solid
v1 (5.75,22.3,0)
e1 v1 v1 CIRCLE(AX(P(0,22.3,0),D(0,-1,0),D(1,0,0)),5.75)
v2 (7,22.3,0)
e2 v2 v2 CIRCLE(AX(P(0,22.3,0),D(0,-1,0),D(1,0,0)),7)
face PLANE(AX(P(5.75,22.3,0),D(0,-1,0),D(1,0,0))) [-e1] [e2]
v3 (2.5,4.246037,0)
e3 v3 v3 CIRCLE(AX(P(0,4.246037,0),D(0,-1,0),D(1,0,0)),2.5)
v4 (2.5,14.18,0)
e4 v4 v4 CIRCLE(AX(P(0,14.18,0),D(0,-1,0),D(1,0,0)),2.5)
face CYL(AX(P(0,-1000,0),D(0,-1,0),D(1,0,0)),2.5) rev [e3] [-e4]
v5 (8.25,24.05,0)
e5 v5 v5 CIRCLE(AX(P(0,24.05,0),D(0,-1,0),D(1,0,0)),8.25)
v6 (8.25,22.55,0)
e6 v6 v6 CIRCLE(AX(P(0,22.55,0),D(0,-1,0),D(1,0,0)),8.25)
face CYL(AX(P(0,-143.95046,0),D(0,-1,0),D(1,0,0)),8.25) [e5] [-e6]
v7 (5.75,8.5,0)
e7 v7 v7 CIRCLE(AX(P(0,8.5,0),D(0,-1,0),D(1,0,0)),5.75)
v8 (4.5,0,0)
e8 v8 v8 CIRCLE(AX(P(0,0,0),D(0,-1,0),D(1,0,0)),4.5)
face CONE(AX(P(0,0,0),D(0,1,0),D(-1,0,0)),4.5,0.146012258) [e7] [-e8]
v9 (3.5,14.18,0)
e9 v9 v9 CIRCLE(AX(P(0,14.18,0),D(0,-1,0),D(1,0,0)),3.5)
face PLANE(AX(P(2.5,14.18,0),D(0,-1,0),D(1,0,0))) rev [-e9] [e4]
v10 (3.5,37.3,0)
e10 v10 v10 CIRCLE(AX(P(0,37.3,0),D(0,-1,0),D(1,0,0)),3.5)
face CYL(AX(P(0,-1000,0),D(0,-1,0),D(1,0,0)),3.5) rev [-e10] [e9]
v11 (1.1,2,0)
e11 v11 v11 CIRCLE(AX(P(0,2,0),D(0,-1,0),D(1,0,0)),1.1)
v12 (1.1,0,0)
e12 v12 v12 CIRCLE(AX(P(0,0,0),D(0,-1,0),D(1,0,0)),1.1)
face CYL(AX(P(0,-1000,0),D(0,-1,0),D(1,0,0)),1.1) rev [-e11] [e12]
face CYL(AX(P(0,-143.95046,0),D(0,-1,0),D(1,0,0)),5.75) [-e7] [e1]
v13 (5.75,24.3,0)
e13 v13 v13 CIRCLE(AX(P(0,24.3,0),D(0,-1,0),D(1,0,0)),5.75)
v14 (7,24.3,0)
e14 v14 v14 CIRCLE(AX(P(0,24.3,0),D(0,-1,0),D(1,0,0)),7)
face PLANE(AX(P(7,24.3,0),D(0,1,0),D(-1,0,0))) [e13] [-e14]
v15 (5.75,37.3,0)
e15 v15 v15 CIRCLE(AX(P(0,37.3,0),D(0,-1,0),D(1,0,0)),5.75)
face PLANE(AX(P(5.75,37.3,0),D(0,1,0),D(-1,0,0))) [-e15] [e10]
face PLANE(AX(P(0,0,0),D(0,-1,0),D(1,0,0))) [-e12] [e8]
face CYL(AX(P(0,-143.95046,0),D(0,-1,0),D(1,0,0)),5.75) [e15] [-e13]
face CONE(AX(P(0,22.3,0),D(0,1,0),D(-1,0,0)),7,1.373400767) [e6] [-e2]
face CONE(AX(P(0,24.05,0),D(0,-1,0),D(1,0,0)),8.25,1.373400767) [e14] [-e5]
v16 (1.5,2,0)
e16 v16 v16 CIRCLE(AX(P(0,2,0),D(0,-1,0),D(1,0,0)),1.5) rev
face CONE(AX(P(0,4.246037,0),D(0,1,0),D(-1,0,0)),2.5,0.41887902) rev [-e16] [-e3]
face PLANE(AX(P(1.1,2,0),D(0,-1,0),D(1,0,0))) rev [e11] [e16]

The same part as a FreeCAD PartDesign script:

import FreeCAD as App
import Part
import Sketcher
from FreeCAD import Vector


def edges_at(feature, points):
    """Names of the edges that pass closest to the given points."""
    edges = feature.Shape.Edges
    near = lambda p: min(range(len(edges)), key=lambda i: edges[i].distToShape(Part.Vertex(*p))[0])
    return sorted({f"Edge{near(p) + 1}" for p in points})


def add_polygon(sketch, points):
    """Adds a closed chain of lines whose ends are joined by coincident constraints."""
    first, n = sketch.GeometryCount, len(points)
    for a, b in zip(points, points[1:] + points[:1]):
        sketch.addGeometry(Part.LineSegment(App.Vector(*a, 0), App.Vector(*b, 0)), False)
    for i in range(n):
        sketch.addConstraint(Sketcher.Constraint("Coincident", first + i, 2, first + (i + 1) % n, 1))

doc = App.newDocument("Part")
body = doc.addObject("PartDesign::Body", "Body")

# Sketch on XY plane
sketch1 = body.newObject("Sketcher::SketchObject", "Sketch")
sketch1.AttachmentSupport = (doc.getObject("XY_Plane"), [""])
sketch1.MapMode = "FlatFace"
add_polygon(sketch1, [(0, 0), (4.5, 0), (5.8, 8.5), (5.8, 22.3), (7, 22.3), (8.2, 22.6), (8.2, 24.1), (7, 24.3), (5.8, 24.3), (5.8, 37.3), (0, 37.3)])  # lines 0-10
sketch1.addConstraint([
    Sketcher.Constraint("Horizontal", 0),
    Sketcher.Constraint("Vertical", 2),
    Sketcher.Constraint("Horizontal", 3),
    Sketcher.Constraint("Vertical", 5),
    Sketcher.Constraint("Horizontal", 7),
    Sketcher.Constraint("Vertical", 8),
    Sketcher.Constraint("Horizontal", 9),
    Sketcher.Constraint("Vertical", 10),
    Sketcher.Constraint("Coincident", 10, 2, -1, 1),
    Sketcher.Constraint("Vertical", 3, 2, 6, 2),
    Sketcher.Constraint("Vertical", 2, 2, 7, 2),
    Sketcher.Constraint("Equal", 4, 6),
    Sketcher.Constraint("DistanceY", 8, 1, 8, 2, 13.0),
    Sketcher.Constraint("DistanceX", 0, 1, 0, 2, 4.5),
    Sketcher.Constraint("DistanceY", 2, 1, 2, 2, 13.8),
    Sketcher.Constraint("DistanceY", 5, 1, 5, 2, 1.5),
    Sketcher.Constraint("DistanceY", 10, 2, 10, 1, 37.3),
    Sketcher.Constraint("DistanceX", -1, 1, 3, 2, 7.0),
    Sketcher.Constraint("DistanceY", 3, 2, 6, 2, 2.0),
    Sketcher.Constraint("DistanceX", 3, 1, 3, 2, 1.25),
    Sketcher.Constraint("DistanceX", 2, 2, 4, 2, 2.5),
])
revolution = body.newObject("PartDesign::Revolution", "Revolution")
revolution.Profile = sketch1
revolution.ReferenceAxis = (sketch1, ["V_Axis"])
revolution.Angle = 360

# Sketch on XY plane
sketch2 = body.newObject("Sketcher::SketchObject", "Sketch001")
sketch2.AttachmentSupport = (doc.getObject("XY_Plane"), [""])
sketch2.MapMode = "FlatFace"
add_polygon(sketch2, [(1.1, 0), (1.1, 2), (2.5, 2), (2.5, 14.2), (3.5, 14.2), (3.5, 37.3), (0, 37.3), (0, 0)])  # lines 0-7
sketch2.addConstraint([
    Sketcher.Constraint("Vertical", 0),
    Sketcher.Constraint("Horizontal", 1),
    Sketcher.Constraint("Vertical", 2),
    Sketcher.Constraint("Horizontal", 3),
    Sketcher.Constraint("Vertical", 4),
    Sketcher.Constraint("Horizontal", 5),
    Sketcher.Constraint("Vertical", 6),
    Sketcher.Constraint("Horizontal", 7),
    Sketcher.Constraint("Coincident", 6, 2, -1, 1),
    Sketcher.Constraint("DistanceX", 3, 1, 3, 2, 1.0),
    Sketcher.Constraint("DistanceY", 0, 1, 0, 2, 2.0),
    Sketcher.Constraint("DistanceX", 1, 1, 1, 2, 1.4),
    Sketcher.Constraint("DistanceX", 5, 2, 5, 1, 3.5),
    Sketcher.Constraint("DistanceY", 6, 2, 6, 1, 37.3),
    Sketcher.Constraint("DistanceY", 2, 1, 2, 2, 12.18),
])
groove = body.newObject("PartDesign::Groove", "Groove")
groove.Profile = sketch2
groove.ReferenceAxis = (sketch2, ["V_Axis"])
groove.Angle = 360
doc.recompute()

chamfer = body.newObject("PartDesign::Chamfer", "Chamfer")
chamfer.Base = (groove, edges_at(groove, [(-2.5, 2, 0)]))
chamfer.ChamferType = "Two distances"
chamfer.Size = 1
chamfer.Size2 = 2.246037

doc.recompute()
